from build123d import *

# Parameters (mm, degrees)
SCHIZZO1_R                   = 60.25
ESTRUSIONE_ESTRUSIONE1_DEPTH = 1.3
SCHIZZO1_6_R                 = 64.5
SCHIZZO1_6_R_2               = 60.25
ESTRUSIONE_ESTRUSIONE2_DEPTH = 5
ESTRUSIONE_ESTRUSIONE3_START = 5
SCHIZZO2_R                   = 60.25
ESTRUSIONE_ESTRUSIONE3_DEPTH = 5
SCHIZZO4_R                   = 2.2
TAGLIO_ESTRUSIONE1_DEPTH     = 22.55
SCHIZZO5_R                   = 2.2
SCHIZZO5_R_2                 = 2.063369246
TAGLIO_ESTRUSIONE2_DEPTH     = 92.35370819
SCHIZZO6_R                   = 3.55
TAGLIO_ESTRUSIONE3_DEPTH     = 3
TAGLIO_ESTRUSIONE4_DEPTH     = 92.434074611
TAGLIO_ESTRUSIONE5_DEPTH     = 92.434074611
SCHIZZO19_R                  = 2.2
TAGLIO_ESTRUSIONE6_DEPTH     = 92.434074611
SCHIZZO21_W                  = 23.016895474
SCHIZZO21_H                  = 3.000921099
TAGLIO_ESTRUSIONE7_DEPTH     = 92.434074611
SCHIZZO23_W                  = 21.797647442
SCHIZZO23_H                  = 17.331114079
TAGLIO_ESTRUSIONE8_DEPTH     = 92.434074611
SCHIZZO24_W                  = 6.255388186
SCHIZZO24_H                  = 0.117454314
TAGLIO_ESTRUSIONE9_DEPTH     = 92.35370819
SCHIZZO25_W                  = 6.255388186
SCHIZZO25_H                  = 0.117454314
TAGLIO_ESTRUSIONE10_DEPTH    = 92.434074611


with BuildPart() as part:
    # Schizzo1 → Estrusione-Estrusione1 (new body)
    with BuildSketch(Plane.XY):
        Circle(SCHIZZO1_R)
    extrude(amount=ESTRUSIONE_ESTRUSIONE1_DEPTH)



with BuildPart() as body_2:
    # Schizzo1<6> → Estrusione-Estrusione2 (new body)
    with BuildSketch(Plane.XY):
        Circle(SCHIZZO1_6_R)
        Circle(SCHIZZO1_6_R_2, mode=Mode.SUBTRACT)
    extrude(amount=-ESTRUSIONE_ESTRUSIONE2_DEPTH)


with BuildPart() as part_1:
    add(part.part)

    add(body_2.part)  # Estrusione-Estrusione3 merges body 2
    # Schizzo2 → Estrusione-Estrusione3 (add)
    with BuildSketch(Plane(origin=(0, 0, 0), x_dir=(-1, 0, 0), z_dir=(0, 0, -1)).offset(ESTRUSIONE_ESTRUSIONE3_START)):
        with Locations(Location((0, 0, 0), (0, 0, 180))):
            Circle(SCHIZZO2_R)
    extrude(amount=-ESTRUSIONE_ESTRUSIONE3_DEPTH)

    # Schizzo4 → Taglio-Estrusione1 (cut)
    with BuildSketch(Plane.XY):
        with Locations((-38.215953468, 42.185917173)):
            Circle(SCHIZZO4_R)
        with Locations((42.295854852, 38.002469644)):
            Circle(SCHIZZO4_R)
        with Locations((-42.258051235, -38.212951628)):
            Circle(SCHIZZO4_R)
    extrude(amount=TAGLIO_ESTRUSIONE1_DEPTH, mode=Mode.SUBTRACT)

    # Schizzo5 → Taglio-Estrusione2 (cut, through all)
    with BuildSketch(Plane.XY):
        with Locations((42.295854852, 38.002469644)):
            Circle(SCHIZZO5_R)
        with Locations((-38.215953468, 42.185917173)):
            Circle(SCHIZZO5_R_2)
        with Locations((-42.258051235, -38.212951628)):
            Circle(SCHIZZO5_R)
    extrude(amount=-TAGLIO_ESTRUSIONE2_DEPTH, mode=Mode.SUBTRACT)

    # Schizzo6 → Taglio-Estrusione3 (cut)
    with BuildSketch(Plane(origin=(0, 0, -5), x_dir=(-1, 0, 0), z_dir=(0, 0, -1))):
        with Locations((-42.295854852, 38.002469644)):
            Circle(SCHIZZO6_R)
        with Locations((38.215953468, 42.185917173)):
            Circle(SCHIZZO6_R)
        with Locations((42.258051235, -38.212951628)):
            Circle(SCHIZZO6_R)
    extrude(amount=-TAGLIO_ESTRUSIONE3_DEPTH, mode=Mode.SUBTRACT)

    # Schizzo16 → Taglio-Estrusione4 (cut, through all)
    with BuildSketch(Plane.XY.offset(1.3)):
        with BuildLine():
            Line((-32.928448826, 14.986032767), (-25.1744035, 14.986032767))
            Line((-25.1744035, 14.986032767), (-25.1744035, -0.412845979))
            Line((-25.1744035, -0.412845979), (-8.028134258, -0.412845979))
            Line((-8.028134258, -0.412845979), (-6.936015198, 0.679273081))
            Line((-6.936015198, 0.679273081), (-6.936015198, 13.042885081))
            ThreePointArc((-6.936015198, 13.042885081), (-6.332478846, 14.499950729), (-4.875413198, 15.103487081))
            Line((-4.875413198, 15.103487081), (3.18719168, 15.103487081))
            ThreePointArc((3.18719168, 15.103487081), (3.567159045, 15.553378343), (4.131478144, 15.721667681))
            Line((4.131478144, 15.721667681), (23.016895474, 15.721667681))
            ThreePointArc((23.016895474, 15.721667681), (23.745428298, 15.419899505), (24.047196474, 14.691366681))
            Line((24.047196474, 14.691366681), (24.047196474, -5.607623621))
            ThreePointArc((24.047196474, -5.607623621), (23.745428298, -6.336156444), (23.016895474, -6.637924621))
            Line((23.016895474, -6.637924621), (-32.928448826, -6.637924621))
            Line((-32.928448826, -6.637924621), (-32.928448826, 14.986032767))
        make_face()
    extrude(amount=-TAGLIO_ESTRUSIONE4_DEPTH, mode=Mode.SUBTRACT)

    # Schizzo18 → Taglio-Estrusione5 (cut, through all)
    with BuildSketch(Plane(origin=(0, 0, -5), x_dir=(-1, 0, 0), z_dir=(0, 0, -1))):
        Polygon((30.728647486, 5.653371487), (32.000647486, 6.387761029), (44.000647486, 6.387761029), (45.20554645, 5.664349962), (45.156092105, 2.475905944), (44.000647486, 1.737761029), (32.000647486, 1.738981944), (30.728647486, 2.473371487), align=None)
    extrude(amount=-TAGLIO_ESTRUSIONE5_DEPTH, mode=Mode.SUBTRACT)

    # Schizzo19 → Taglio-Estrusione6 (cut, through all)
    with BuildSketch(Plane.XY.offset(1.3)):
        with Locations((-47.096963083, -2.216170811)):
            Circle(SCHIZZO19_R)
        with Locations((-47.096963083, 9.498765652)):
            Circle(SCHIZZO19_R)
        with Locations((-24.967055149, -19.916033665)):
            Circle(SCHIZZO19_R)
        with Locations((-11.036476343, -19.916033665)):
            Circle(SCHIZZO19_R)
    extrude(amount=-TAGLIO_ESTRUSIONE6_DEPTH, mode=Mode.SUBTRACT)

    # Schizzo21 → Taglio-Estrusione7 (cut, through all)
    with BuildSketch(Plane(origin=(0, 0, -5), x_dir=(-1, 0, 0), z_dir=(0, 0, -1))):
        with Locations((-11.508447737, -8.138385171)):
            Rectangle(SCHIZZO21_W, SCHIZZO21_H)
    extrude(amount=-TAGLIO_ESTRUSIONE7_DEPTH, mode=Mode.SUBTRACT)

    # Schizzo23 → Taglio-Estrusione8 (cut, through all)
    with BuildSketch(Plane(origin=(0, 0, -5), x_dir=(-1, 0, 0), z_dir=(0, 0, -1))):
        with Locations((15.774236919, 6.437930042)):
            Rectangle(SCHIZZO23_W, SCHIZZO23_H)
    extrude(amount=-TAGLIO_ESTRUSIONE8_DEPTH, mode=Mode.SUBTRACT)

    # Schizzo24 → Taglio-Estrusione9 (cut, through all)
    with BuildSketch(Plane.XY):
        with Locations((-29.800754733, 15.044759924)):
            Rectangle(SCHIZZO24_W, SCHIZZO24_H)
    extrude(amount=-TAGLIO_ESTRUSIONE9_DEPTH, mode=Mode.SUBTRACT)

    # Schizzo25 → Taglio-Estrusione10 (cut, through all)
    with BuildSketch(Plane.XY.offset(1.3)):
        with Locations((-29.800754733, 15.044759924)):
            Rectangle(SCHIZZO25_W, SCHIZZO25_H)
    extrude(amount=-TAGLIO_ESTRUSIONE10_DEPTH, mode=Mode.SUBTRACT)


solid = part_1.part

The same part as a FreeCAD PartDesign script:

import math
import FreeCAD as App
import Part
import Sketcher

V = App.Vector
Q = App.Units.Quantity

doc = App.newDocument("Part")
body = doc.addObject("PartDesign::Body", "Body")

# Sketch on XY plane
sketch1 = body.newObject("Sketcher::SketchObject", "Sketch")
sketch1.AttachmentSupport = (doc.getObject("XY_Plane"), [""])
sketch1.MapMode = "FlatFace"
sketch1.addGeometry(Part.Circle(V(0, 0, 0), V(0, 0, 1), 60.25), False)
sketch1.addConstraint(Sketcher.Constraint("Coincident", 0, 3, -1, 1))
sketch1.addConstraint(Sketcher.Constraint("Diameter", 0, 120.5))
pad1 = body.newObject("PartDesign::Pad", "Pad")
pad1.Profile = sketch1
pad1.Length = 1.3
body2 = doc.addObject("PartDesign::Body", "Body001")

# Sketch on XY plane
sketch2 = body2.newObject("Sketcher::SketchObject", "Sketch001")
sketch2.AttachmentSupport = (doc.getObject("XY_Plane001"), [""])
sketch2.MapMode = "FlatFace"
sketch2.addGeometry(Part.Circle(V(0, 0, 0), V(0, 0, 1), 64.5), False)
sketch2.addGeometry(Part.Circle(V(0, 0, 0), V(0, 0, 1), 60.25), False)
sketch2.addConstraint(Sketcher.Constraint("Coincident", 0, 3, -1, 1))
sketch2.addConstraint(Sketcher.Constraint("Coincident", 1, 3, -1, 1))
sketch2.addConstraint(Sketcher.Constraint("Diameter", 0, 129.0))
sketch2.addConstraint(Sketcher.Constraint("Diameter", 1, 120.5))
pad2 = body2.newObject("PartDesign::Pad", "Pad001")
pad2.Profile = sketch2
pad2.Length = 5
pad2.Reversed = True
body.AllowCompound = True
doc.recompute()

boolean = body.newObject("PartDesign::Boolean", "Boolean")
boolean.Type = "Fuse"
boolean.addObjects([body2])

# Sketch on XY plane
sketch3 = body.newObject("Sketcher::SketchObject", "Sketch002")
sketch3.AttachmentSupport = (doc.getObject("XY_Plane"), [""])
sketch3.MapMode = "FlatFace"
sketch3.AttachmentOffset = App.Placement(V(0, 0, -5), App.Rotation())
sketch3.addGeometry(Part.Circle(V(0, 0, 0), V(0, 0, 1), 60.25), False)
sketch3.addConstraint(Sketcher.Constraint("Coincident", 0, 3, -1, 1))
sketch3.addConstraint(Sketcher.Constraint("Diameter", 0, 120.5))
pad3 = body.newObject("PartDesign::Pad", "Pad002")
pad3.Profile = sketch3
pad3.Length = 5

# Sketch on XY plane
sketch4 = body.newObject("Sketcher::SketchObject", "Sketch003")
sketch4.AttachmentSupport = (doc.getObject("XY_Plane"), [""])
sketch4.MapMode = "FlatFace"
sketch4.addGeometry(Part.Circle(V(-38.215953, 42.185917, 0), V(0, 0, 1), 2.2), False)
sketch4.addGeometry(Part.Circle(V(42.295855, 38.00247, 0), V(0, 0, 1), 2.2), False)
sketch4.addGeometry(Part.Circle(V(-42.258051, -38.212952, 0), V(0, 0, 1), 2.2), False)
sketch4.addConstraint(Sketcher.Constraint("Equal", 0, 1))
sketch4.addConstraint(Sketcher.Constraint("Equal", 1, 2))
sketch4.addConstraint(Sketcher.Constraint("Diameter", 0, 4.4))
sketch4.addConstraint(Sketcher.Constraint("DistanceY", -1, 1, 1, 3, 38.00247))
sketch4.addConstraint(Sketcher.Constraint("DistanceX", 2, 3, -1, 1, 42.258051))
sketch4.addConstraint(Sketcher.Constraint("DistanceY", 2, 3, -1, 1, 38.212952))
sketch4.addConstraint(Sketcher.Constraint("DistanceX", 0, 3, 1, 3, 80.511808))
sketch4.addConstraint(Sketcher.Constraint("DistanceY", 2, 3, 0, 3, 80.398869))
sketch4.addConstraint(Sketcher.Constraint("DistanceX", 0, 3, -1, 1, 38.215953))
pocket1 = body.newObject("PartDesign::Pocket", "Pocket")
pocket1.Profile = sketch4
pocket1.Length = 22.55
pocket1.Reversed = True

# Sketch on XY plane
sketch5 = body.newObject("Sketcher::SketchObject", "Sketch004")
sketch5.AttachmentSupport = (doc.getObject("XY_Plane"), [""])
sketch5.MapMode = "FlatFace"
sketch5.addGeometry(Part.Circle(V(42.295855, 38.00247, 0), V(0, 0, 1), 2.2), False)
sketch5.addGeometry(Part.Circle(V(-38.215953, 42.185917, 0), V(0, 0, 1), 2.063369), False)
sketch5.addGeometry(Part.Circle(V(-42.258051, -38.212952, 0), V(0, 0, 1), 2.2), False)
sketch5.addConstraint(Sketcher.Constraint("Equal", 0, 2))
sketch5.addConstraint(Sketcher.Constraint("Diameter", 0, 4.4))
sketch5.addConstraint(Sketcher.Constraint("Diameter", 1, 4.126738))
sketch5.addConstraint(Sketcher.Constraint("DistanceY", -1, 1, 0, 3, 38.00247))
sketch5.addConstraint(Sketcher.Constraint("DistanceX", 2, 3, -1, 1, 42.258051))
sketch5.addConstraint(Sketcher.Constraint("DistanceY", 2, 3, -1, 1, 38.212952))
sketch5.addConstraint(Sketcher.Constraint("DistanceX", 1, 3, 0, 3, 80.511808))
sketch5.addConstraint(Sketcher.Constraint("DistanceY", 2, 3, 1, 3, 80.398869))
sketch5.addConstraint(Sketcher.Constraint("DistanceX", -1, 1, 0, 3, 42.295855))
pocket2 = body.newObject("PartDesign::Pocket", "Pocket001")
pocket2.Profile = sketch5
pocket2.Type = "ThroughAll"

# Sketch on XY plane
sketch6 = body.newObject("Sketcher::SketchObject", "Sketch005")
sketch6.AttachmentSupport = (doc.getObject("XY_Plane"), [""])
sketch6.MapMode = "FlatFace"
sketch6.AttachmentOffset = App.Placement(V(0, 0, -5), App.Rotation())
sketch6.addGeometry(Part.Circle(V(42.295855, 38.00247, 0), V(0, 0, 1), 3.55), False)
sketch6.addGeometry(Part.Circle(V(-38.215953, 42.185917, 0), V(0, 0, 1), 3.55), False)
sketch6.addGeometry(Part.Circle(V(-42.258051, -38.212952, 0), V(0, 0, 1), 3.55), False)
sketch6.addConstraint(Sketcher.Constraint("Equal", 0, 1))
sketch6.addConstraint(Sketcher.Constraint("Equal", 1, 2))
sketch6.addConstraint(Sketcher.Constraint("Diameter", 0, 7.1))
sketch6.addConstraint(Sketcher.Constraint("DistanceY", -1, 1, 0, 3, 38.00247))
sketch6.addConstraint(Sketcher.Constraint("DistanceX", 2, 3, -1, 1, 42.258051))
sketch6.addConstraint(Sketcher.Constraint("DistanceY", 2, 3, -1, 1, 38.212952))
sketch6.addConstraint(Sketcher.Constraint("DistanceX", 1, 3, 0, 3, 80.511808))
sketch6.addConstraint(Sketcher.Constraint("DistanceY", 2, 3, 1, 3, 80.398869))
sketch6.addConstraint(Sketcher.Constraint("DistanceX", -1, 1, 0, 3, 42.295855))
pocket3 = body.newObject("PartDesign::Pocket", "Pocket002")
pocket3.Profile = sketch6
pocket3.Length = 3
pocket3.Reversed = True

# Sketch on XY plane
sketch7 = body.newObject("Sketcher::SketchObject", "Sketch006")
sketch7.AttachmentSupport = (doc.getObject("XY_Plane"), [""])
sketch7.MapMode = "FlatFace"
sketch7.AttachmentOffset = App.Placement(V(0, 0, 1.3), App.Rotation())
sketch7.addGeometry(Part.LineSegment(V(-25.174404, 14.986033, 0), V(-32.928449, 14.986033, 0)), False)
sketch7.addGeometry(Part.LineSegment(V(-32.928449, 14.986033, 0), V(-32.928449, -6.637925, 0)), False)
sketch7.addGeometry(Part.LineSegment(V(-32.928449, -6.637925, 0), V(23.016895, -6.637925, 0)), False)
sketch7.addGeometry(Part.ArcOfCircle(Part.Circle(V(23.016895, -5.607624, 0), V(0, 0, 1), 1.030301), math.radians(-90), math.radians(0)), False)
sketch7.addGeometry(Part.LineSegment(V(24.047196, -5.607624, 0), V(24.047196, 14.691367, 0)), False)
sketch7.addGeometry(Part.ArcOfCircle(Part.Circle(V(23.016895, 14.691367, 0), V(0, 0, 1), 1.030301), math.radians(0), math.radians(90)), False)
sketch7.addGeometry(Part.LineSegment(V(23.016895, 15.721668, 0), V(4.131478, 15.721668, 0)), False)
sketch7.addGeometry(Part.ArcOfCircle(Part.Circle(V(4.131478, 14.691367, 0), V(0, 0, 1), 1.030301), math.radians(90), math.radians(156.421822)), False)
sketch7.addGeometry(Part.LineSegment(V(3.187192, 15.103487, 0), V(-4.875413, 15.103487, 0)), False)
sketch7.addGeometry(Part.ArcOfCircle(Part.Circle(V(-4.875413, 13.042885, 0), V(0, 0, 1), 2.060602), math.radians(90), math.radians(180)), False)
sketch7.addGeometry(Part.LineSegment(V(-6.936015, 13.042885, 0), V(-6.936015, 0.679273, 0)), False)
sketch7.addGeometry(Part.LineSegment(V(-6.936015, 0.679273, 0), V(-8.028134, -0.412846, 0)), False)
sketch7.addGeometry(Part.LineSegment(V(-8.028134, -0.412846, 0), V(-25.174404, -0.412846, 0)), False)
sketch7.addGeometry(Part.LineSegment(V(-25.174404, -0.412846, 0), V(-25.174404, 14.986033, 0)), False)
sketch7.addConstraint(Sketcher.Constraint("Coincident", 0, 2, 1, 1))
sketch7.addConstraint(Sketcher.Constraint("Coincident", 1, 2, 2, 1))
sketch7.addConstraint(Sketcher.Constraint("Tangent", 2, 2, 3, 1))
sketch7.addConstraint(Sketcher.Constraint("Tangent", 3, 2, 4, 1))
sketch7.addConstraint(Sketcher.Constraint("Tangent", 4, 2, 5, 1))
sketch7.addConstraint(Sketcher.Constraint("Tangent", 5, 2, 6, 1))
sketch7.addConstraint(Sketcher.Constraint("Tangent", 6, 2, 7, 1))
sketch7.addConstraint(Sketcher.Constraint("Coincident", 7, 2, 8, 1))
sketch7.addConstraint(Sketcher.Constraint("Tangent", 8, 2, 9, 1))
sketch7.addConstraint(Sketcher.Constraint("Tangent", 9, 2, 10, 1))
sketch7.addConstraint(Sketcher.Constraint("Coincident", 10, 2, 11, 1))
sketch7.addConstraint(Sketcher.Constraint("Coincident", 11, 2, 12, 1))
sketch7.addConstraint(Sketcher.Constraint("Coincident", 12, 2, 13, 1))
sketch7.addConstraint(Sketcher.Constraint("Coincident", 13, 2, 0, 1))
sketch7.addConstraint(Sketcher.Constraint("Horizontal", 0))
sketch7.addConstraint(Sketcher.Constraint("Vertical", 1))
sketch7.addConstraint(Sketcher.Constraint("Horizontal", 2))
sketch7.addConstraint(Sketcher.Constraint("Vertical", 4))
sketch7.addConstraint(Sketcher.Constraint("Horizontal", 6))
sketch7.addConstraint(Sketcher.Constraint("Horizontal", 8))
sketch7.addConstraint(Sketcher.Constraint("Vertical", 10))
sketch7.addConstraint(Sketcher.Constraint("Horizontal", 12))
sketch7.addConstraint(Sketcher.Constraint("Vertical", 13))
sketch7.addConstraint(Sketcher.Constraint("Equal", 3, 5))
sketch7.addConstraint(Sketcher.Constraint("Equal", 5, 7))
sketch7.addConstraint(Sketcher.Constraint("Angle", 11, Q("-135 deg")))
sketch7.addConstraint(Sketcher.Constraint("Radius", 3, 1.030301))
sketch7.addConstraint(Sketcher.Constraint("Radius", 9, 2.060602))
sketch7.addConstraint(Sketcher.Constraint("DistanceX", 12, 2, 12, 1, 17.146269))
sketch7.addConstraint(Sketcher.Constraint("DistanceY", 4, 1, 4, 2, 20.29899))
sketch7.addConstraint(Sketcher.Constraint("DistanceY", 13, 1, 13, 2, 15.398879))
sketch7.addConstraint(Sketcher.Constraint("Distance", 11, 1.54449))
sketch7.addConstraint(Sketcher.Constraint("DistanceX", 0, 2, 0, 1, 7.754045))
sketch7.addConstraint(Sketcher.Constraint("DistanceX", 2, 1, 2, 2, 55.945344))
sketch7.addConstraint(Sketcher.Constraint("DistanceX", 6, 2, 6, 1, 18.885417))
sketch7.addConstraint(Sketcher.Constraint("DistanceX", 8, 2, 8, 1, 8.062605))
sketch7.addConstraint(Sketcher.Constraint("DistanceY", 1, 2, 1, 1, 21.623957))
sketch7.addConstraint(Sketcher.Constraint("DistanceX", -1, 1, 7, 3, 4.131478))
sketch7.addConstraint(Sketcher.Constraint("DistanceY", 3, 3, -1, 1, 5.607624))
pocket4 = body.newObject("PartDesign::Pocket", "Pocket003")
pocket4.Profile = sketch7
pocket4.Type = "ThroughAll"

# Sketch on XY plane
sketch8 = body.newObject("Sketcher::SketchObject", "Sketch007")
sketch8.AttachmentSupport = (doc.getObject("XY_Plane"), [""])
sketch8.MapMode = "FlatFace"
sketch8.AttachmentOffset = App.Placement(V(0, 0, -5), App.Rotation())
sketch8.addGeometry(Part.LineSegment(V(-32.000647, 6.387761, 0), V(-30.728647, 5.653371, 0)), False)
sketch8.addGeometry(Part.LineSegment(V(-30.728647, 5.653371, 0), V(-30.728647, 2.473371, 0)), False)
sketch8.addGeometry(Part.LineSegment(V(-30.728647, 2.473371, 0), V(-32.000647, 1.738982, 0)), False)
sketch8.addGeometry(Part.LineSegment(V(-32.000647, 1.738982, 0), V(-44.000647, 1.737761, 0)), False)
sketch8.addGeometry(Part.LineSegment(V(-44.000647, 1.737761, 0), V(-45.156092, 2.475906, 0)), False)
sketch8.addGeometry(Part.LineSegment(V(-45.156092, 2.475906, 0), V(-45.205546, 5.66435, 0)), False)
sketch8.addGeometry(Part.LineSegment(V(-45.205546, 5.66435, 0), V(-44.000647, 6.387761, 0)), False)
sketch8.addGeometry(Part.LineSegment(V(-44.000647, 6.387761, 0), V(-32.000647, 6.387761, 0)), False)
sketch8.addConstraint(Sketcher.Constraint("Coincident", 0, 2, 1, 1))
sketch8.addConstraint(Sketcher.Constraint("Coincident", 1, 2, 2, 1))
sketch8.addConstraint(Sketcher.Constraint("Coincident", 2, 2, 3, 1))
sketch8.addConstraint(Sketcher.Constraint("Coincident", 3, 2, 4, 1))
sketch8.addConstraint(Sketcher.Constraint("Coincident", 4, 2, 5, 1))
sketch8.addConstraint(Sketcher.Constraint("Coincident", 5, 2, 6, 1))
sketch8.addConstraint(Sketcher.Constraint("Coincident", 6, 2, 7, 1))
sketch8.addConstraint(Sketcher.Constraint("Coincident", 7, 2, 0, 1))
sketch8.addConstraint(Sketcher.Constraint("Vertical", 1))
sketch8.addConstraint(Sketcher.Constraint("Horizontal", 7))
sketch8.addConstraint(Sketcher.Constraint("Vertical", 3, 2, 6, 2))
sketch8.addConstraint(Sketcher.Constraint("Vertical", 2, 2, 7, 2))
sketch8.addConstraint(Sketcher.Constraint("Equal", 0, 2))
sketch8.addConstraint(Sketcher.Constraint("DistanceX", 7, 1, 7, 2, 12.0))
sketch8.addConstraint(Sketcher.Constraint("Angle", 0, Q("-30 deg")))
sketch8.addConstraint(Sketcher.Constraint("DistanceY", 1, 2, 1, 1, 3.18))
sketch8.addConstraint(Sketcher.Constraint("DistanceY", 3, 2, 6, 2, 4.65))
sketch8.addConstraint(Sketcher.Constraint("DistanceX", 2, 2, 1, 2, 1.272))
sketch8.addConstraint(Sketcher.Constraint("Distance", 4, 1.371098))
sketch8.addConstraint(Sketcher.Constraint("DistanceX", 5, 2, 3, 2, 1.204899))
sketch8.addConstraint(Sketcher.Constraint("DistanceY", -1, 1, 0, 2, 5.653371))
sketch8.addConstraint(Sketcher.Constraint("DistanceY", -1, 1, 5, 2, 5.66435))
sketch8.addConstraint(Sketcher.Constraint("Distance", 5, 3.188828))
sketch8.addConstraint(Sketcher.Constraint("DistanceX", 0, 2, -1, 1, 30.728647))
pocket5 = body.newObject("PartDesign::Pocket", "Pocket004")
pocket5.Profile = sketch8
pocket5.Type = "ThroughAll"
pocket5.Reversed = True

# Sketch on XY plane
sketch9 = body.newObject("Sketcher::SketchObject", "Sketch008")
sketch9.AttachmentSupport = (doc.getObject("XY_Plane"), [""])
sketch9.MapMode = "FlatFace"
sketch9.AttachmentOffset = App.Placement(V(0, 0, 1.3), App.Rotation())
sketch9.addGeometry(Part.Circle(V(-47.096963, -2.216171, 0), V(0, 0, 1), 2.2), False)
sketch9.addGeometry(Part.Circle(V(-47.096963, 9.498766, 0), V(0, 0, 1), 2.2), False)
sketch9.addGeometry(Part.Circle(V(-24.967055, -19.916034, 0), V(0, 0, 1), 2.2), False)
sketch9.addGeometry(Part.Circle(V(-11.036476, -19.916034, 0), V(0, 0, 1), 2.2), False)
sketch9.addConstraint(Sketcher.Constraint("Equal", 0, 1))
sketch9.addConstraint(Sketcher.Constraint("Equal", 1, 2))
sketch9.addConstraint(Sketcher.Constraint("Equal", 2, 3))
sketch9.addConstraint(Sketcher.Constraint("Horizontal", 2, 3, 3, 3))
sketch9.addConstraint(Sketcher.Constraint("Vertical", 0, 3, 1, 3))
sketch9.addConstraint(Sketcher.Constraint("Diameter", 0, 4.4))
sketch9.addConstraint(Sketcher.Constraint("DistanceY", 2, 3, 1, 3, 29.414799))
sketch9.addConstraint(Sketcher.Constraint("DistanceY", 0, 3, -1, 1, 2.216171))
sketch9.addConstraint(Sketcher.Constraint("DistanceX", 2, 3, 3, 3, 13.930579))
sketch9.addConstraint(Sketcher.Constraint("DistanceX", 0, 3, -1, 1, 47.096963))
sketch9.addConstraint(Sketcher.Constraint("DistanceY", -1, 1, 1, 3, 9.498766))
sketch9.addConstraint(Sketcher.Constraint("DistanceX", 2, 3, -1, 1, 24.967055))
pocket6 = body.newObject("PartDesign::Pocket", "Pocket005")
pocket6.Profile = sketch9
pocket6.Type = "ThroughAll"

# Sketch on XY plane
sketch10 = body.newObject("Sketcher::SketchObject", "Sketch009")
sketch10.AttachmentSupport = (doc.getObject("XY_Plane"), [""])
sketch10.MapMode = "FlatFace"
sketch10.AttachmentOffset = App.Placement(V(0, 0, -5), App.Rotation())
sketch10.addGeometry(Part.LineSegment(V(23.016895, -6.637925, 0), V(23.016895, -9.638846, 0)), False)
sketch10.addGeometry(Part.LineSegment(V(23.016895, -9.638846, 0), V(0, -9.638846, 0)), False)
sketch10.addGeometry(Part.LineSegment(V(0, -9.638846, 0), V(0, -6.637925, 0)), False)
sketch10.addGeometry(Part.LineSegment(V(0, -6.637925, 0), V(23.016895, -6.637925, 0)), False)
sketch10.addConstraint(Sketcher.Constraint("Coincident", 0, 2, 1, 1))
sketch10.addConstraint(Sketcher.Constraint("Coincident", 1, 2, 2, 1))
sketch10.addConstraint(Sketcher.Constraint("Coincident", 2, 2, 3, 1))
sketch10.addConstraint(Sketcher.Constraint("Coincident", 3, 2, 0, 1))
sketch10.addConstraint(Sketcher.Constraint("Vertical", 0))
sketch10.addConstraint(Sketcher.Constraint("Horizontal", 1))
sketch10.addConstraint(Sketcher.Constraint("Vertical", 2))
sketch10.addConstraint(Sketcher.Constraint("Horizontal", 3))
sketch10.addConstraint(Sketcher.Constraint("PointOnObject", 1, 2, -2))
sketch10.addConstraint(Sketcher.Constraint("DistanceY", 0, 2, 0, 1, 3.000921))
sketch10.addConstraint(Sketcher.Constraint("DistanceX", 1, 2, 1, 1, 23.016895))
sketch10.addConstraint(Sketcher.Constraint("DistanceY", 0, 2, -1, 1, 9.638846))
pocket7 = body.newObject("PartDesign::Pocket", "Pocket006")
pocket7.Profile = sketch10
pocket7.Type = "ThroughAll"
pocket7.Reversed = True

# Sketch on XY plane
sketch11 = body.newObject("Sketcher::SketchObject", "Sketch010")
sketch11.AttachmentSupport = (doc.getObject("XY_Plane"), [""])
sketch11.MapMode = "FlatFace"
sketch11.AttachmentOffset = App.Placement(V(0, 0, -5), App.Rotation())
sketch11.addGeometry(Part.LineSegment(V(-4.875413, 15.103487, 0), V(-4.875413, -2.227627, 0)), False)
sketch11.addGeometry(Part.LineSegment(V(-4.875413, -2.227627, 0), V(-26.673061, -2.227627, 0)), False)
sketch11.addGeometry(Part.LineSegment(V(-26.673061, -2.227627, 0), V(-26.673061, 15.103487, 0)), False)
sketch11.addGeometry(Part.LineSegment(V(-26.673061, 15.103487, 0), V(-4.875413, 15.103487, 0)), False)
sketch11.addConstraint(Sketcher.Constraint("Coincident", 0, 2, 1, 1))
sketch11.addConstraint(Sketcher.Constraint("Coincident", 1, 2, 2, 1))
sketch11.addConstraint(Sketcher.Constraint("Coincident", 2, 2, 3, 1))
sketch11.addConstraint(Sketcher.Constraint("Coincident", 3, 2, 0, 1))
sketch11.addConstraint(Sketcher.Constraint("Vertical", 0))
sketch11.addConstraint(Sketcher.Constraint("Horizontal", 1))
sketch11.addConstraint(Sketcher.Constraint("Vertical", 2))
sketch11.addConstraint(Sketcher.Constraint("Horizontal", 3))
sketch11.addConstraint(Sketcher.Constraint("DistanceX", 1, 2, 1, 1, 21.797647))
sketch11.addConstraint(Sketcher.Constraint("DistanceY", 0, 2, 0, 1, 17.331114))
sketch11.addConstraint(Sketcher.Constraint("DistanceX", 1, 2, -1, 1, 26.673061))
sketch11.addConstraint(Sketcher.Constraint("DistanceY", 0, 2, -1, 1, 2.227627))
pocket8 = body.newObject("PartDesign::Pocket", "Pocket007")
pocket8.Profile = sketch11
pocket8.Type = "ThroughAll"
pocket8.Reversed = True

# Sketch on XY plane
sketch12 = body.newObject("Sketcher::SketchObject", "Sketch011")
sketch12.AttachmentSupport = (doc.getObject("XY_Plane"), [""])
sketch12.MapMode = "FlatFace"
sketch12.addGeometry(Part.LineSegment(V(-32.928449, 15.103487, 0), V(-32.928449, 14.986033, 0)), False)
sketch12.addGeometry(Part.LineSegment(V(-32.928449, 14.986033, 0), V(-26.673061, 14.986033, 0)), False)
sketch12.addGeometry(Part.LineSegment(V(-26.673061, 14.986033, 0), V(-26.673061, 15.103487, 0)), False)
sketch12.addGeometry(Part.LineSegment(V(-26.673061, 15.103487, 0), V(-32.928449, 15.103487, 0)), False)
sketch12.addConstraint(Sketcher.Constraint("Coincident", 0, 2, 1, 1))
sketch12.addConstraint(Sketcher.Constraint("Coincident", 1, 2, 2, 1))
sketch12.addConstraint(Sketcher.Constraint("Coincident", 2, 2, 3, 1))
sketch12.addConstraint(Sketcher.Constraint("Coincident", 3, 2, 0, 1))
sketch12.addConstraint(Sketcher.Constraint("Vertical", 0))
sketch12.addConstraint(Sketcher.Constraint("Horizontal", 1))
sketch12.addConstraint(Sketcher.Constraint("Vertical", 2))
sketch12.addConstraint(Sketcher.Constraint("Horizontal", 3))
sketch12.addConstraint(Sketcher.Constraint("DistanceX", 1, 1, 1, 2, 6.255388))
sketch12.addConstraint(Sketcher.Constraint("DistanceY", 0, 2, 0, 1, 0.117454))
sketch12.addConstraint(Sketcher.Constraint("DistanceX", 0, 2, -1, 1, 32.928449))
sketch12.addConstraint(Sketcher.Constraint("DistanceY", -1, 1, 0, 2, 14.986033))
pocket9 = body.newObject("PartDesign::Pocket", "Pocket008")
pocket9.Profile = sketch12
pocket9.Type = "ThroughAll"

# Sketch on XY plane
sketch13 = body.newObject("Sketcher::SketchObject", "Sketch012")
sketch13.AttachmentSupport = (doc.getObject("XY_Plane"), [""])
sketch13.MapMode = "FlatFace"
sketch13.AttachmentOffset = App.Placement(V(0, 0, 1.3), App.Rotation())
sketch13.addGeometry(Part.LineSegment(V(-32.928449, 15.103487, 0), V(-32.928449, 14.986033, 0)), False)
sketch13.addGeometry(Part.LineSegment(V(-32.928449, 14.986033, 0), V(-26.673061, 14.986033, 0)), False)
sketch13.addGeometry(Part.LineSegment(V(-26.673061, 14.986033, 0), V(-26.673061, 15.103487, 0)), False)
sketch13.addGeometry(Part.LineSegment(V(-26.673061, 15.103487, 0), V(-32.928449, 15.103487, 0)), False)
sketch13.addConstraint(Sketcher.Constraint("Coincident", 0, 2, 1, 1))
sketch13.addConstraint(Sketcher.Constraint("Coincident", 1, 2, 2, 1))
sketch13.addConstraint(Sketcher.Constraint("Coincident", 2, 2, 3, 1))
sketch13.addConstraint(Sketcher.Constraint("Coincident", 3, 2, 0, 1))
sketch13.addConstraint(Sketcher.Constraint("Vertical", 0))
sketch13.addConstraint(Sketcher.Constraint("Horizontal", 1))
sketch13.addConstraint(Sketcher.Constraint("Vertical", 2))
sketch13.addConstraint(Sketcher.Constraint("Horizontal", 3))
sketch13.addConstraint(Sketcher.Constraint("DistanceX", 1, 1, 1, 2, 6.255388))
sketch13.addConstraint(Sketcher.Constraint("DistanceY", 0, 2, 0, 1, 0.117454))
sketch13.addConstraint(Sketcher.Constraint("DistanceX", 0, 2, -1, 1, 32.928449))
sketch13.addConstraint(Sketcher.Constraint("DistanceY", -1, 1, 0, 2, 14.986033))
pocket10 = body.newObject("PartDesign::Pocket", "Pocket009")
pocket10.Profile = sketch13
pocket10.Type = "ThroughAll"

doc.recompute()
